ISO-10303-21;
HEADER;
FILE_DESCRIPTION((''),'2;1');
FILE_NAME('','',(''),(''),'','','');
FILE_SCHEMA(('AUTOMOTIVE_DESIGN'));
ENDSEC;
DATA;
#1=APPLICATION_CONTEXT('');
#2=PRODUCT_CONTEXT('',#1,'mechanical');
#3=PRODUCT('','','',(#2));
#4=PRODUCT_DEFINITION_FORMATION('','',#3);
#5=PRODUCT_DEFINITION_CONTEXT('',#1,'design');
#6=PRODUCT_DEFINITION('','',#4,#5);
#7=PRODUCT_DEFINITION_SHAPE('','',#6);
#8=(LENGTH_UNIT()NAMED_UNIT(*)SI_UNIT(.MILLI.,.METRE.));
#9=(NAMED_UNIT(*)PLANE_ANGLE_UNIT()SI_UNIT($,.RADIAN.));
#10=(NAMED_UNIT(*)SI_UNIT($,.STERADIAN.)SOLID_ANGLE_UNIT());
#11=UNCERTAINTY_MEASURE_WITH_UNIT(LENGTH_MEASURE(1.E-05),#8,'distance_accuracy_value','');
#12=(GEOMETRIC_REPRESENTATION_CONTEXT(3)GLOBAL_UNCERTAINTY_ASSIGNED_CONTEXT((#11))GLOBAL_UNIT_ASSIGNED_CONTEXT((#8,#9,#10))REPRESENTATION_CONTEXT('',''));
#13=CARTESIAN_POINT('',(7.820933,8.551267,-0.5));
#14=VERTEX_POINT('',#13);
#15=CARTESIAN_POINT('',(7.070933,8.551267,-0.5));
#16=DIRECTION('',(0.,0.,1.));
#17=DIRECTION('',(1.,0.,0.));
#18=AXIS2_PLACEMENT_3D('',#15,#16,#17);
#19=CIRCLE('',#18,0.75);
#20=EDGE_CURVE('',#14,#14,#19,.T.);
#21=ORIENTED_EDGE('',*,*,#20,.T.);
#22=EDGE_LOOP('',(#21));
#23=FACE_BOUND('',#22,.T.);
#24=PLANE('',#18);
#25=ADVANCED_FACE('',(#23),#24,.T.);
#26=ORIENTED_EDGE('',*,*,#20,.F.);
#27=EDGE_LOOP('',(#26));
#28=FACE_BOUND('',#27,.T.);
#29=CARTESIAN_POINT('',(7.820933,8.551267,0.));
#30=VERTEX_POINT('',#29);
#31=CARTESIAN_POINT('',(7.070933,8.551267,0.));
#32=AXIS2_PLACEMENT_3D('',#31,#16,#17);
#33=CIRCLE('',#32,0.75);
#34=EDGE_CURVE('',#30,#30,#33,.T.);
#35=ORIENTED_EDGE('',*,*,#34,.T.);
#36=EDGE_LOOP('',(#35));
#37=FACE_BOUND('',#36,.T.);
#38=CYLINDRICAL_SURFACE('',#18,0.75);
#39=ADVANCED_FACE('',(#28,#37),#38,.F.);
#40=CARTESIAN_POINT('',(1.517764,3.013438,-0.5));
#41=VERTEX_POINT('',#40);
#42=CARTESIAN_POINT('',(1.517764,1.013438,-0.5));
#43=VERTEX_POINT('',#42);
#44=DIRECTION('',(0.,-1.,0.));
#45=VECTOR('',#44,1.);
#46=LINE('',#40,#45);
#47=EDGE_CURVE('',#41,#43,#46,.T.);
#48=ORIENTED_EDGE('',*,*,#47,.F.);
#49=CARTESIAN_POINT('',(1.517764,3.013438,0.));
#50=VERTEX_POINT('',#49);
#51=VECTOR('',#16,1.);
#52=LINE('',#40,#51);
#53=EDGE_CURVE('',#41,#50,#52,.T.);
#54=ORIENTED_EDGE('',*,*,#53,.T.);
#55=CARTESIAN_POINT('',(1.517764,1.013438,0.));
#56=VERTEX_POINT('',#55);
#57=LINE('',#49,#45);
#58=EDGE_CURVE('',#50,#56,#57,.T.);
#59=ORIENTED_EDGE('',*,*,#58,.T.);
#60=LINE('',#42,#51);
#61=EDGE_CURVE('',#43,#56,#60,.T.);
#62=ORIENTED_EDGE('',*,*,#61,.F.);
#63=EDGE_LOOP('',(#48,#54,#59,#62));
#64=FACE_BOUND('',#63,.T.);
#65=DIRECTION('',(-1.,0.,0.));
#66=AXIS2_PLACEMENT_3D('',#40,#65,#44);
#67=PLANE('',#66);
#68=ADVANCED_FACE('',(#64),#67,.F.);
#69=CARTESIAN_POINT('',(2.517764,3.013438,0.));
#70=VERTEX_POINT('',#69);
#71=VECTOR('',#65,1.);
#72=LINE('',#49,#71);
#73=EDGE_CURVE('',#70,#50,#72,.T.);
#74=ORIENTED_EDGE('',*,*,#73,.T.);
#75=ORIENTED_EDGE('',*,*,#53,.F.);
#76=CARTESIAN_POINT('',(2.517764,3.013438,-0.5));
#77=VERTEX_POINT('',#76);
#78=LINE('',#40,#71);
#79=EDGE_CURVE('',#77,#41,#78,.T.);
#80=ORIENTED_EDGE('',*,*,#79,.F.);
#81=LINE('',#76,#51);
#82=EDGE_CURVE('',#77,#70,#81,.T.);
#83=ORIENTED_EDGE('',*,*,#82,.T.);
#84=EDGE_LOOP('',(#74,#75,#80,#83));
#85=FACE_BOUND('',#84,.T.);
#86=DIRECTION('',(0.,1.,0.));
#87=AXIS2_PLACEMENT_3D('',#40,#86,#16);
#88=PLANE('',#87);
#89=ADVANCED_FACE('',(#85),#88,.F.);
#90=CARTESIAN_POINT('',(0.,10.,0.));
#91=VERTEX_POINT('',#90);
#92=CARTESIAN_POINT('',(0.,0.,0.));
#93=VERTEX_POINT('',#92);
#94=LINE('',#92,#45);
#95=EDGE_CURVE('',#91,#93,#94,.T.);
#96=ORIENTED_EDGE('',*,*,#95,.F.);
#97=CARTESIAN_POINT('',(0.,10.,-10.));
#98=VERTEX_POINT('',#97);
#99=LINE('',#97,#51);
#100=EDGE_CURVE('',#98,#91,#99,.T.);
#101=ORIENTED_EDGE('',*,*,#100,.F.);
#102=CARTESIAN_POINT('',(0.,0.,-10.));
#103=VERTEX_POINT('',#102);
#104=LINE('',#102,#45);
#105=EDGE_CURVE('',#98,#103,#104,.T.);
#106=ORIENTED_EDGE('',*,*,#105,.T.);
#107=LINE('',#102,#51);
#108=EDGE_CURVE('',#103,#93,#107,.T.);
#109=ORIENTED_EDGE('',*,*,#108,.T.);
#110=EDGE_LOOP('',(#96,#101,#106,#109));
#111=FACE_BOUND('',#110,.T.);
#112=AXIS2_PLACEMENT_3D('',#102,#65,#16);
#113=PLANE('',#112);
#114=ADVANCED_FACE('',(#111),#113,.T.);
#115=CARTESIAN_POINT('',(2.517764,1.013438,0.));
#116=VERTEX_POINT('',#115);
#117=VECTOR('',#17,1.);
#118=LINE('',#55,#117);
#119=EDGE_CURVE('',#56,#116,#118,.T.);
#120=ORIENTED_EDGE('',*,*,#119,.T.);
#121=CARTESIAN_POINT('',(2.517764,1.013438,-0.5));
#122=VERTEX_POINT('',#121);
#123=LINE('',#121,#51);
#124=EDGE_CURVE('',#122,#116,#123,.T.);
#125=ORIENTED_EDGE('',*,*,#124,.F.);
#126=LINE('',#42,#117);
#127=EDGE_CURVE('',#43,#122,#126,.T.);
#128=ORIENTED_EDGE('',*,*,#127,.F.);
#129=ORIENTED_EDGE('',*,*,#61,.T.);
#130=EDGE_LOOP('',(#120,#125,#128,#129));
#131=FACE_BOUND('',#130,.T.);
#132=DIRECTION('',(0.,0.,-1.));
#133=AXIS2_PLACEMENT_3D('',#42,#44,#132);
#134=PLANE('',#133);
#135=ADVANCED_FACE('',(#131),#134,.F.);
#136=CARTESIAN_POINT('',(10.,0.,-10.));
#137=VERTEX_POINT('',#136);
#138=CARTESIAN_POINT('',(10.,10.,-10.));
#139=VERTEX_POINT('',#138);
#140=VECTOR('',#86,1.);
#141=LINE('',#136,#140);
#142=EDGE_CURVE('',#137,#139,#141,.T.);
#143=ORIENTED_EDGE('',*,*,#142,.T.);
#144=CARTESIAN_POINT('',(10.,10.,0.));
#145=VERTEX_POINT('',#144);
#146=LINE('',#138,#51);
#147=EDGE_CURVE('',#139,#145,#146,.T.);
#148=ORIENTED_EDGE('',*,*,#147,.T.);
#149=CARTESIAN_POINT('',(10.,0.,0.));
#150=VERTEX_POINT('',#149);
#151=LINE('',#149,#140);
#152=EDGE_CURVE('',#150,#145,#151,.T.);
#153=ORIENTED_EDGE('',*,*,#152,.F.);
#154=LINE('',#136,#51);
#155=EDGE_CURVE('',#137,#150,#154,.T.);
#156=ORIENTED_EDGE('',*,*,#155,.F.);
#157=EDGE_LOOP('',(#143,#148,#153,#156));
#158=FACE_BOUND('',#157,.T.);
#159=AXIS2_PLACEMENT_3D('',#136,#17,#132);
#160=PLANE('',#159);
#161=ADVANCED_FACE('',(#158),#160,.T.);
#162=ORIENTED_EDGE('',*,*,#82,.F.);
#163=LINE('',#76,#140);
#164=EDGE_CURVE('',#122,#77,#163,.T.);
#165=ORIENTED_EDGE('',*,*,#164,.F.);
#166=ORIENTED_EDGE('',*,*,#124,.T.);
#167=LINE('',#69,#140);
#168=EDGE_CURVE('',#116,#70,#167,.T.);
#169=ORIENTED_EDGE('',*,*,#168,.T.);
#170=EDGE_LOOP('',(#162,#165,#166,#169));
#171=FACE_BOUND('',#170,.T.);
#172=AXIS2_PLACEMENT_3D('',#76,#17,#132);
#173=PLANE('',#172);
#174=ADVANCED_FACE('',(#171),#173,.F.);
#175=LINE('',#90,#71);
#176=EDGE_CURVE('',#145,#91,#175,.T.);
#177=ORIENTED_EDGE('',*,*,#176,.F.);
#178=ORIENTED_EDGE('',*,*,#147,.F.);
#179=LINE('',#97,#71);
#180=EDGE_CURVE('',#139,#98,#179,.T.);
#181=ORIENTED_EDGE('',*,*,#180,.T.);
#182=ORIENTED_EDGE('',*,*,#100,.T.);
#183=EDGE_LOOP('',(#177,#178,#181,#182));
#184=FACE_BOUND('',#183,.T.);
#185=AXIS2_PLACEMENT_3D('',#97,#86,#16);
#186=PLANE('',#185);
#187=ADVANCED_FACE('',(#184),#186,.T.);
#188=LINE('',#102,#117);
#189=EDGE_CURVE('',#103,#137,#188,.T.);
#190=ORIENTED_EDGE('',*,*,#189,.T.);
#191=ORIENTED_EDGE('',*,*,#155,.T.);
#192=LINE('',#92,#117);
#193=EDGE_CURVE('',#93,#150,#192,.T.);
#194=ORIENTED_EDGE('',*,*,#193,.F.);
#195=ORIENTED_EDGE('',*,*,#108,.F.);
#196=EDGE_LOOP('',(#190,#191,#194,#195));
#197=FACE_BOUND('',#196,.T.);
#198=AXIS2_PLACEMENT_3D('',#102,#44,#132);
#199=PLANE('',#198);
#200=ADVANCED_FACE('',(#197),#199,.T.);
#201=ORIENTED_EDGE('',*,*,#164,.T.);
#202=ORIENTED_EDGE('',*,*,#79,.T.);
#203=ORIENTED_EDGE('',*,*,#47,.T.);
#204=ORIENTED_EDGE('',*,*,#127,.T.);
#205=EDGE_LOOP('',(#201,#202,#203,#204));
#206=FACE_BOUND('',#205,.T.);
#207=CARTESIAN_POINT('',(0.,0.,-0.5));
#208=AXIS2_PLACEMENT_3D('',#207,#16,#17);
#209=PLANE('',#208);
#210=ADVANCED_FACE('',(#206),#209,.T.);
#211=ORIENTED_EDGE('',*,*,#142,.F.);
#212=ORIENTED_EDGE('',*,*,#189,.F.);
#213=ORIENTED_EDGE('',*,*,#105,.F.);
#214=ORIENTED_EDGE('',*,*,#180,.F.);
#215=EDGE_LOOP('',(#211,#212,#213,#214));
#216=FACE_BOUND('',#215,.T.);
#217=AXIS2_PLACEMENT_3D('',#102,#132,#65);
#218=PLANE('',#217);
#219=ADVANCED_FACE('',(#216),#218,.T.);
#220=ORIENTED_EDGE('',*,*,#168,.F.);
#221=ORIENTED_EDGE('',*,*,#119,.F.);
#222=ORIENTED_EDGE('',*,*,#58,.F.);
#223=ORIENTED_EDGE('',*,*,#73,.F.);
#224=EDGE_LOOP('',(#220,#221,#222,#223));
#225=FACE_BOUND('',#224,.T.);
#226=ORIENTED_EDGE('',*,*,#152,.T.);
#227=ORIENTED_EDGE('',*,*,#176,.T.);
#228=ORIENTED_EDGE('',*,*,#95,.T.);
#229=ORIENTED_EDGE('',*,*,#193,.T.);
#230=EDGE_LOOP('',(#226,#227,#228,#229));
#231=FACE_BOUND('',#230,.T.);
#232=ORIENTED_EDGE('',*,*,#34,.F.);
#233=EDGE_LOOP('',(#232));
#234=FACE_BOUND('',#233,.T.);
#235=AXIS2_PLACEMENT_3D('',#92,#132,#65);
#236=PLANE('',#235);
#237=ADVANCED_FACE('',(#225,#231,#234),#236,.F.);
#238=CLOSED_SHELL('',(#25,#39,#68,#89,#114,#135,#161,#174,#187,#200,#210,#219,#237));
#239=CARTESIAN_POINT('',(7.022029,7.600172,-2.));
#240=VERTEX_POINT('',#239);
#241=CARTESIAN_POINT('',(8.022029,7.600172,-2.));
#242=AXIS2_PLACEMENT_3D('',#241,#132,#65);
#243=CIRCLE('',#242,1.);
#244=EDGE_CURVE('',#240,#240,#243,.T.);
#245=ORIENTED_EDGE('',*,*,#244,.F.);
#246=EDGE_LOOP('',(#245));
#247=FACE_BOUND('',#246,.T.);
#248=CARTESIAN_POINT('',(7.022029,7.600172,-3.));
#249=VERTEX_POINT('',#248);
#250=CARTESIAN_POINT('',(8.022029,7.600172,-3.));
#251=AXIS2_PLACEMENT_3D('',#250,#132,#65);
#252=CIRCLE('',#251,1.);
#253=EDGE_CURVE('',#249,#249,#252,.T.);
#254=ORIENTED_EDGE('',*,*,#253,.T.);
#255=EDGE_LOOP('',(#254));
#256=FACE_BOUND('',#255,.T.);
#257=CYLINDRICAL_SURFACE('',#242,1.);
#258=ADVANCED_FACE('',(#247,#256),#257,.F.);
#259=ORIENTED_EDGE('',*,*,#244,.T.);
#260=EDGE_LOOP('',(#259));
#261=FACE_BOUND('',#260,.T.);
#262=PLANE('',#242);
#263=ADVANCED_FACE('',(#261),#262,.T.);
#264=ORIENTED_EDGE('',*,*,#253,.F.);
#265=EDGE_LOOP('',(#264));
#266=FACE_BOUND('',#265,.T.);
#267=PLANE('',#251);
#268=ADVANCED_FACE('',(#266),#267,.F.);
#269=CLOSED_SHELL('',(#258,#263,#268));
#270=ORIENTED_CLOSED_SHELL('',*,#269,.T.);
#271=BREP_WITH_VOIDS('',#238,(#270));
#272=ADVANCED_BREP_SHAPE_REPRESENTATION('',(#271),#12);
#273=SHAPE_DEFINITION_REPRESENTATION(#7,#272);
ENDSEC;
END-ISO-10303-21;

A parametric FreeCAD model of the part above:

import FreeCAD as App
import Part
import Sketcher

V = App.Vector


def add_polygon(sketch, points):
    """Adds a closed chain of lines whose ends are joined by coincident constraints."""
    first, n = sketch.GeometryCount, len(points)
    for a, b in zip(points, points[1:] + points[:1]):
        sketch.addGeometry(Part.LineSegment(App.Vector(*a, 0), App.Vector(*b, 0)), False)
    for i in range(n):
        sketch.addConstraint(Sketcher.Constraint("Coincident", first + i, 2, first + (i + 1) % n, 1))

doc = App.newDocument("Part")
params = doc.addObject("Spreadsheet::Sheet", "Params")
for row, (alias, value) in enumerate([
    ("sketch1_width", "10 mm"),
    ("pad1_length", "10 mm"),
    ("sketch2_diameter", "2 mm"),
    ("pocket1_length", "1 mm"),
    ("sketch3_width", "1 mm"),
    ("sketch3_height", "2 mm"),
    ("pocket2_length", "0.5 mm"),
    ("sketch4_diameter", "1.5 mm"),
    ("pocket3_length", "0.5 mm"),
], start=1):
    params.set(f"A{row}", alias)
    params.set(f"B{row}", "=" + value)
    params.setAlias(f"B{row}", alias)

body = doc.addObject("PartDesign::Body", "Body")

# Sketch on XY plane
sketch1 = body.newObject("Sketcher::SketchObject", "Sketch")
sketch1.AttachmentSupport = (doc.getObject("XY_Plane"), [""])
sketch1.MapMode = "FlatFace"
add_polygon(sketch1, [(0, 10), (0, 0), (10, 0), (10, 10)])  # lines 0-3
sketch1.addConstraint([
    Sketcher.Constraint("Vertical", 0),
    Sketcher.Constraint("Horizontal", 1),
    Sketcher.Constraint("Vertical", 2),
    Sketcher.Constraint("Horizontal", 3),
    Sketcher.Constraint("Coincident", 0, 2, -1, 1),
    Sketcher.Constraint("Equal", 3, 0),
    Sketcher.Constraint("DistanceX", 1, 1, 1, 2, 10.0),
])
sketch1.setExpression("Constraints[10]", "Params.sketch1_width")
pad1 = body.newObject("PartDesign::Pad", "Pad")
pad1.Profile = sketch1
pad1.setExpression("Length", "Params.pad1_length")
pad1.Reversed = True

# Sketch on XY plane
sketch2 = body.newObject("Sketcher::SketchObject", "Sketch001")
sketch2.AttachmentSupport = (doc.getObject("XY_Plane"), [""])
sketch2.MapMode = "FlatFace"
sketch2.AttachmentOffset = App.Placement(V(0, 0, -3), App.Rotation())
sketch2.addGeometry(Part.Circle(V(8, 7.6, 0), V(0, 0, 1), 1), False)
sketch2.addConstraint([
    Sketcher.Constraint("Diameter", 0, 2.0),
    Sketcher.Constraint("DistanceX", -1, 1, 0, 3, 8.022029),
    Sketcher.Constraint("DistanceY", -1, 1, 0, 3, 7.600172),
])
sketch2.setExpression("Constraints[0]", "Params.sketch2_diameter")
pocket1 = body.newObject("PartDesign::Pocket", "Pocket")
pocket1.Profile = sketch2
pocket1.setExpression("Length", "Params.pocket1_length")
pocket1.Reversed = True

# Sketch on XY plane
sketch3 = body.newObject("Sketcher::SketchObject", "Sketch002")
sketch3.AttachmentSupport = (doc.getObject("XY_Plane"), [""])
sketch3.MapMode = "FlatFace"
add_polygon(sketch3, [(1.5, 3), (1.5, 1), (2.5, 1), (2.5, 3)])  # lines 0-3
sketch3.addConstraint([
    Sketcher.Constraint("Vertical", 0),
    Sketcher.Constraint("Horizontal", 1),
    Sketcher.Constraint("Vertical", 2),
    Sketcher.Constraint("Horizontal", 3),
    Sketcher.Constraint("DistanceX", 1, 1, 1, 2, 1.0),
    Sketcher.Constraint("DistanceY", 0, 2, 0, 1, 2.0),
    Sketcher.Constraint("DistanceX", -1, 1, 0, 2, 1.517764),
    Sketcher.Constraint("DistanceY", -1, 1, 0, 2, 1.013438),
])
sketch3.setExpression("Constraints[8]", "Params.sketch3_width")
sketch3.setExpression("Constraints[9]", "Params.sketch3_height")
pocket2 = body.newObject("PartDesign::Pocket", "Pocket001")
pocket2.Profile = sketch3
pocket2.setExpression("Length", "Params.pocket2_length")

# Sketch on XY plane
sketch4 = body.newObject("Sketcher::SketchObject", "Sketch003")
sketch4.AttachmentSupport = (doc.getObject("XY_Plane"), [""])
sketch4.MapMode = "FlatFace"
sketch4.addGeometry(Part.Circle(V(7.1, 8.6, 0), V(0, 0, 1), 0.8), False)
sketch4.addConstraint([
    Sketcher.Constraint("Diameter", 0, 1.5),
    Sketcher.Constraint("DistanceX", -1, 1, 0, 3, 7.070933),
    Sketcher.Constraint("DistanceY", -1, 1, 0, 3, 8.551267),
])
sketch4.setExpression("Constraints[0]", "Params.sketch4_diameter")
pocket3 = body.newObject("PartDesign::Pocket", "Pocket002")
pocket3.Profile = sketch4
pocket3.setExpression("Length", "Params.pocket3_length")

doc.recompute()
